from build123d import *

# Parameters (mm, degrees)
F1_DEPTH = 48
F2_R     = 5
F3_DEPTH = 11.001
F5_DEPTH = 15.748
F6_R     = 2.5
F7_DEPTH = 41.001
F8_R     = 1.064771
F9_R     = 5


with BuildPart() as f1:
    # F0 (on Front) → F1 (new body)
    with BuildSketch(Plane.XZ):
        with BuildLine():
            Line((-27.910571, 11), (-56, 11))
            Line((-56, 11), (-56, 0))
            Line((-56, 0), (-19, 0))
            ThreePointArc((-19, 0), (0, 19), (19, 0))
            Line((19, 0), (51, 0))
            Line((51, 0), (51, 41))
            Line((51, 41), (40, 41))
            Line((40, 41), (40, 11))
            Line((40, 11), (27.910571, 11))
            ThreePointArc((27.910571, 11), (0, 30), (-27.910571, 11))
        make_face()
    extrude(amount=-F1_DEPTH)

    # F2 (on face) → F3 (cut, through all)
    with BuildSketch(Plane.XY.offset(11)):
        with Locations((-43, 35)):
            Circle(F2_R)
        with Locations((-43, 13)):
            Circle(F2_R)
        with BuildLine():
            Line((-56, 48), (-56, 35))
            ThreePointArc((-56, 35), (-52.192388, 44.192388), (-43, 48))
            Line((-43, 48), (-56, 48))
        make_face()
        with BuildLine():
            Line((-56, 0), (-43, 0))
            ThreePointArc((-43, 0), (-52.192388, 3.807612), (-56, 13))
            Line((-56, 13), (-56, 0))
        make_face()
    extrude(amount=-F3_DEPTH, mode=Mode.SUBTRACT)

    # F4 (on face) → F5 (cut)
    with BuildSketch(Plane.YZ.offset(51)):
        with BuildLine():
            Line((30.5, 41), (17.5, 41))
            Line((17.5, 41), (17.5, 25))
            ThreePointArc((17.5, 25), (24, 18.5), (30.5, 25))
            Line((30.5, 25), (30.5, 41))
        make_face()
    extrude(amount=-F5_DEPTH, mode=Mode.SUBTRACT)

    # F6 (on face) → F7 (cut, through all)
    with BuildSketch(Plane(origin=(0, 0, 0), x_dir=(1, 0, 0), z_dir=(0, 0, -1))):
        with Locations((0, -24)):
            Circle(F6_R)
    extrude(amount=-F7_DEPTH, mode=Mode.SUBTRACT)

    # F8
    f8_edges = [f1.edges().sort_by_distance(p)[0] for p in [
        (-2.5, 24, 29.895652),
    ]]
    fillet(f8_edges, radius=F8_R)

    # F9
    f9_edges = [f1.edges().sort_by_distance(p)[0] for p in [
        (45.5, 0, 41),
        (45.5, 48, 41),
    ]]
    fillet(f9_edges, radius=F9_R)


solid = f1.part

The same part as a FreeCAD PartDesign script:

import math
import FreeCAD as App
import Part
import Sketcher
Q = App.Units.Quantity


def edges_at(feature, points):
    """Names of the edges that pass closest to the given points."""
    edges = feature.Shape.Edges
    near = lambda p: min(range(len(edges)), key=lambda i: edges[i].distToShape(Part.Vertex(*p))[0])
    return sorted({f"Edge{near(p) + 1}" for p in points})

doc = App.newDocument("Part")
body = doc.addObject("PartDesign::Body", "Body")

# Sketch on XZ plane
sketch1 = body.newObject("Sketcher::SketchObject", "Sketch")
sketch1.AttachmentSupport = (doc.getObject("XZ_Plane"), [""])
sketch1.MapMode = "FlatFace"
sketch1.addGeometry([
    Part.LineSegment(App.Vector(-28, 11, 0), App.Vector(-56, 11, 0)),  # 0
    Part.LineSegment(App.Vector(-56, 11, 0), App.Vector(-56, 0, 0)),  # 1
    Part.LineSegment(App.Vector(-56, 0, 0), App.Vector(-19, 0, 0)),  # 2
    Part.ArcOfCircle(Part.Circle(App.Vector(0, 0, 0), App.Vector(0, 0, 1), 19), math.radians(0), math.radians(180)),  # 3
    Part.LineSegment(App.Vector(19, 0, 0), App.Vector(51, 0, 0)),  # 4
    Part.LineSegment(App.Vector(51, 0, 0), App.Vector(51, 41, 0)),  # 5
    Part.LineSegment(App.Vector(51, 41, 0), App.Vector(40, 41, 0)),  # 6
    Part.LineSegment(App.Vector(40, 41, 0), App.Vector(40, 11, 0)),  # 7
    Part.LineSegment(App.Vector(40, 11, 0), App.Vector(28, 11, 0)),  # 8
    Part.ArcOfCircle(Part.Circle(App.Vector(0, 0, 0), App.Vector(0, 0, 1), 30), math.radians(22), math.radians(158)),  # 9
], False)
sketch1.addConstraint([
    Sketcher.Constraint("Coincident", 0, 2, 1, 1),
    Sketcher.Constraint("Coincident", 1, 2, 2, 1),
    Sketcher.Constraint("Coincident", 2, 2, 3, 2),
    Sketcher.Constraint("Coincident", 3, 1, 4, 1),
    Sketcher.Constraint("Coincident", 4, 2, 5, 1),
    Sketcher.Constraint("Coincident", 5, 2, 6, 1),
    Sketcher.Constraint("Coincident", 6, 2, 7, 1),
    Sketcher.Constraint("Coincident", 7, 2, 8, 1),
    Sketcher.Constraint("Coincident", 8, 2, 9, 1),
    Sketcher.Constraint("Coincident", 9, 2, 0, 1),
    Sketcher.Constraint("Horizontal", 0),
    Sketcher.Constraint("Vertical", 1),
    Sketcher.Constraint("Horizontal", 2),
    Sketcher.Constraint("Horizontal", 4),
    Sketcher.Constraint("Vertical", 5),
    Sketcher.Constraint("Horizontal", 6),
    Sketcher.Constraint("Vertical", 7),
    Sketcher.Constraint("Horizontal", 8),
    Sketcher.Constraint("Coincident", 3, 3, -1, 1),
    Sketcher.Constraint("Coincident", 9, 3, -1, 1),
    Sketcher.Constraint("PointOnObject", 1, 2, -1),
    Sketcher.Constraint("PointOnObject", 3, 1, -1),
    Sketcher.Constraint("Horizontal", 0, 2, 7, 2),
    Sketcher.Constraint("Equal", 6, 1),
    Sketcher.Constraint("Radius", 3, Q("19 mm")),
    Sketcher.Constraint("Radius", 9, Q("29.999999 mm")),
    Sketcher.Constraint("DistanceX", 2, 1, 2, 2, Q("37 mm")),
    Sketcher.Constraint("DistanceX", 4, 1, 4, 2, Q("32 mm")),
    Sketcher.Constraint("DistanceX", 6, 2, 6, 1, Q("11 mm")),
    Sketcher.Constraint("DistanceY", 5, 1, 5, 2, Q("41 mm")),
])
pad1 = body.newObject("PartDesign::Pad", "Pad")
pad1.Profile = sketch1
pad1.Length = 48
pad1.Reversed = True

# Sketch on XY plane
sketch2 = body.newObject("Sketcher::SketchObject", "Sketch001")
sketch2.AttachmentSupport = (doc.getObject("XY_Plane"), [""])
sketch2.MapMode = "FlatFace"
sketch2.AttachmentOffset = App.Placement(App.Vector(0, 0, 11), App.Rotation())
sketch2.addGeometry([
    Part.Circle(App.Vector(-43, 35, 0), App.Vector(0, 0, 1), 5),  # 0
    Part.Circle(App.Vector(-43, 13, 0), App.Vector(0, 0, 1), 5),  # 1
    Part.LineSegment(App.Vector(-56, 48, 0), App.Vector(-56, 35, 0)),  # 2
    Part.ArcOfCircle(Part.Circle(App.Vector(-43, 35, 0), App.Vector(0, 0, 1), 13), math.radians(90), math.radians(180)),  # 3
    Part.LineSegment(App.Vector(-43, 48, 0), App.Vector(-56, 48, 0)),  # 4
    Part.LineSegment(App.Vector(-56, 0, 0), App.Vector(-43, 0, 0)),  # 5
    Part.ArcOfCircle(Part.Circle(App.Vector(-43, 13, 0), App.Vector(0, 0, 1), 13), math.radians(-180), math.radians(-90)),  # 6
    Part.LineSegment(App.Vector(-56, 13, 0), App.Vector(-56, 0, 0)),  # 7
], False)
sketch2.addConstraint([
    Sketcher.Constraint("Tangent", 2, 2, 3, 2),
    Sketcher.Constraint("Tangent", 3, 1, 4, 1),
    Sketcher.Constraint("Coincident", 4, 2, 2, 1),
    Sketcher.Constraint("Tangent", 5, 2, 6, 2),
    Sketcher.Constraint("Tangent", 6, 1, 7, 1),
    Sketcher.Constraint("Coincident", 7, 2, 5, 1),
    Sketcher.Constraint("Vertical", 2),
    Sketcher.Constraint("Horizontal", 4),
    Sketcher.Constraint("Horizontal", 5),
    Sketcher.Constraint("Vertical", 7),
    Sketcher.Constraint("Coincident", 3, 3, 0, 3),
    Sketcher.Constraint("Coincident", 6, 3, 1, 3),
    Sketcher.Constraint("Equal", 0, 1),
    Sketcher.Constraint("Equal", 3, 6),
    Sketcher.Constraint("PointOnObject", 5, 2, -1),
    Sketcher.Constraint("Vertical", 0, 3, 1, 3),
    Sketcher.Constraint("Diameter", 0, Q("10 mm")),
    Sketcher.Constraint("Radius", 3, Q("13.000001 mm")),
    Sketcher.Constraint("DistanceX", 0, 3, -1, 1, Q("43 mm")),
    Sketcher.Constraint("DistanceY", -1, 1, 0, 3, Q("35 mm")),
])
pocket1 = body.newObject("PartDesign::Pocket", "Pocket")
pocket1.Profile = sketch2
pocket1.Type = "ThroughAll"

# Sketch on YZ plane
sketch3 = body.newObject("Sketcher::SketchObject", "Sketch002")
sketch3.AttachmentSupport = (doc.getObject("YZ_Plane"), [""])
sketch3.MapMode = "FlatFace"
sketch3.AttachmentOffset = App.Placement(App.Vector(0, 0, 51), App.Rotation())
sketch3.addGeometry([
    Part.LineSegment(App.Vector(30, 41, 0), App.Vector(18, 41, 0)),
    Part.LineSegment(App.Vector(18, 41, 0), App.Vector(18, 25, 0)),
    Part.ArcOfCircle(Part.Circle(App.Vector(24, 25, 0), App.Vector(0, 0, 1), 6), math.radians(180), math.radians(360)),
    Part.LineSegment(App.Vector(30, 25, 0), App.Vector(30, 41, 0)),
], False)
sketch3.addConstraint([
    Sketcher.Constraint("Coincident", 0, 2, 1, 1),
    Sketcher.Constraint("Tangent", 1, 2, 2, 1),
    Sketcher.Constraint("Tangent", 2, 2, 3, 1),
    Sketcher.Constraint("Coincident", 3, 2, 0, 1),
    Sketcher.Constraint("Horizontal", 0),
    Sketcher.Constraint("Vertical", 1),
    Sketcher.Constraint("Vertical", 3),
    Sketcher.Constraint("Radius", 2, Q("6.5 mm")),
    Sketcher.Constraint("DistanceY", 1, 2, 1, 1, Q("16 mm")),
    Sketcher.Constraint("DistanceX", -1, 1, 2, 3, Q("24 mm")),
    Sketcher.Constraint("DistanceY", -1, 1, 2, 3, Q("25 mm")),
])
pocket2 = body.newObject("PartDesign::Pocket", "Pocket001")
pocket2.Profile = sketch3
pocket2.Length = 15.748

# Sketch on XY plane
sketch4 = body.newObject("Sketcher::SketchObject", "Sketch003")
sketch4.AttachmentSupport = (doc.getObject("XY_Plane"), [""])
sketch4.MapMode = "FlatFace"
sketch4.addGeometry(Part.Circle(App.Vector(0, 24, 0), App.Vector(0, 0, 1), 2.5), False)
sketch4.addConstraint([
    Sketcher.Constraint("PointOnObject", 0, 3, -2),
    Sketcher.Constraint("Diameter", 0, Q("5 mm")),
    Sketcher.Constraint("DistanceY", -1, 1, 0, 3, Q("24 mm")),
])
pocket3 = body.newObject("PartDesign::Pocket", "Pocket002")
pocket3.Profile = sketch4
pocket3.Type = "ThroughAll"
pocket3.Reversed = True
doc.recompute()

fillet = body.newObject("PartDesign::Fillet", "Fillet")
fillet.Base = (pocket3, edges_at(pocket3, [(-2.5, 24, 29.896)]))
fillet.Radius = 1.064771
doc.recompute()

fillet2 = body.newObject("PartDesign::Fillet", "Fillet001")
fillet2.Base = (fillet, edges_at(fillet, [(45.5, 0, 41), (45.5, 48, 41)]))
fillet2.Radius = 5

doc.recompute()
